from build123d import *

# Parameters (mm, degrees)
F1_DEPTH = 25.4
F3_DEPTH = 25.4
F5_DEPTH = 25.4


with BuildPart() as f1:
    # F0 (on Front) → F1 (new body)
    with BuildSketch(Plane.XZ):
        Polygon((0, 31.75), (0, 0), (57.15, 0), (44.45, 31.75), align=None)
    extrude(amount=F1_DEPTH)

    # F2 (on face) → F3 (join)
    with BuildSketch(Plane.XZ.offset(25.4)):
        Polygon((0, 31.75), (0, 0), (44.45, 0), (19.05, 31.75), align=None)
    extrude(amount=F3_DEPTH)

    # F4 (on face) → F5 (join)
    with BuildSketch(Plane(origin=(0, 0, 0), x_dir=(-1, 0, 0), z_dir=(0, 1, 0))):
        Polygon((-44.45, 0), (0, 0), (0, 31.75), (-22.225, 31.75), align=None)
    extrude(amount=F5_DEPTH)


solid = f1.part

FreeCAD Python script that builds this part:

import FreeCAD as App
import Part
import Sketcher
from FreeCAD import Vector
Q = App.Units.Quantity

doc = App.newDocument("Part")
body = doc.addObject("PartDesign::Body", "Body")

sketch1 = body.newObject("Sketcher::SketchObject", "Sketch")
sketch1.AttachmentSupport = (doc.getObject("XZ_Plane"), [""])
sketch1.MapMode = "FlatFace"
sketch1.addGeometry([
    Part.LineSegment(Vector(0, 32, 0), Vector(0, 0, 0)),
    Part.LineSegment(Vector(0, 0, 0), Vector(57, 0, 0)),
    Part.LineSegment(Vector(57, 0, 0), Vector(44, 32, 0)),
    Part.LineSegment(Vector(44, 32, 0), Vector(0, 32, 0)),
], False)
sketch1.addConstraint([
    Sketcher.Constraint("Coincident", 0, 2, 1, 1),
    Sketcher.Constraint("Coincident", 1, 2, 2, 1),
    Sketcher.Constraint("Coincident", 2, 2, 3, 1),
    Sketcher.Constraint("Coincident", 3, 2, 0, 1),
    Sketcher.Constraint("Vertical", 0),
    Sketcher.Constraint("Horizontal", 1),
    Sketcher.Constraint("Horizontal", 3),
    Sketcher.Constraint("Coincident", 0, 2, -1, 1),
    Sketcher.Constraint("DistanceX", 1, 1, 1, 2, Q("2.25 in")),
    Sketcher.Constraint("DistanceX", 3, 2, 3, 1, Q("1.75 in")),
    Sketcher.Constraint("DistanceY", 0, 2, 0, 1, Q("1.25 in")),
])
pad1 = body.newObject("PartDesign::Pad", "Pad")
pad1.Profile = sketch1
pad1.Length = Q("1 in")

sketch2 = body.newObject("Sketcher::SketchObject", "Sketch001")
sketch2.AttachmentSupport = (doc.getObject("XZ_Plane"), [""])
sketch2.MapMode = "FlatFace"
sketch2.AttachmentOffset = App.Placement(Vector(0, 0, 1 * 25.4), App.Rotation())
sketch2.addGeometry([
    Part.LineSegment(Vector(0, 32, 0), Vector(0, 0, 0)),
    Part.LineSegment(Vector(0, 0, 0), Vector(44, 0, 0)),
    Part.LineSegment(Vector(44, 0, 0), Vector(19, 32, 0)),
    Part.LineSegment(Vector(19, 32, 0), Vector(0, 32, 0)),
], False)
sketch2.addConstraint([
    Sketcher.Constraint("Coincident", 0, 2, 1, 1),
    Sketcher.Constraint("Coincident", 1, 2, 2, 1),
    Sketcher.Constraint("Coincident", 2, 2, 3, 1),
    Sketcher.Constraint("Coincident", 3, 2, 0, 1),
    Sketcher.Constraint("Vertical", 0),
    Sketcher.Constraint("Horizontal", 1),
    Sketcher.Constraint("Horizontal", 3),
    Sketcher.Constraint("Coincident", 0, 2, -1, 1),
    Sketcher.Constraint("DistanceX", 2, 2, 1, 2, Q("1 in")),
    Sketcher.Constraint("DistanceX", 1, 1, 1, 2, Q("1.75 in")),
    Sketcher.Constraint("DistanceY", 0, 2, 0, 1, Q("1.25 in")),
])
pad2 = body.newObject("PartDesign::Pad", "Pad001")
pad2.Profile = sketch2
pad2.Length = Q("1 in")

sketch3 = body.newObject("Sketcher::SketchObject", "Sketch002")
sketch3.AttachmentSupport = (doc.getObject("XZ_Plane"), [""])
sketch3.MapMode = "FlatFace"
sketch3.addGeometry([
    Part.LineSegment(Vector(44, 0, 0), Vector(0, 0, 0)),
    Part.LineSegment(Vector(0, 0, 0), Vector(0, 32, 0)),
    Part.LineSegment(Vector(0, 32, 0), Vector(22, 32, 0)),
    Part.LineSegment(Vector(22, 32, 0), Vector(44, 0, 0)),
], False)
sketch3.addConstraint([
    Sketcher.Constraint("Coincident", 0, 2, 1, 1),
    Sketcher.Constraint("Coincident", 1, 2, 2, 1),
    Sketcher.Constraint("Coincident", 2, 2, 3, 1),
    Sketcher.Constraint("Coincident", 3, 2, 0, 1),
    Sketcher.Constraint("Horizontal", 0),
    Sketcher.Constraint("Vertical", 1),
    Sketcher.Constraint("Horizontal", 2),
    Sketcher.Constraint("Coincident", 0, 2, -1, 1),
    Sketcher.Constraint("DistanceX", 0, 2, 0, 1, Q("1.75 in")),
    Sketcher.Constraint("DistanceY", 1, 1, 1, 2, Q("1.25 in")),
    Sketcher.Constraint("DistanceX", 2, 1, 2, 2, Q("0.875 in")),
])
pad3 = body.newObject("PartDesign::Pad", "Pad002")
pad3.Profile = sketch3
pad3.Length = Q("1 in")
pad3.Reversed = True

doc.recompute()
